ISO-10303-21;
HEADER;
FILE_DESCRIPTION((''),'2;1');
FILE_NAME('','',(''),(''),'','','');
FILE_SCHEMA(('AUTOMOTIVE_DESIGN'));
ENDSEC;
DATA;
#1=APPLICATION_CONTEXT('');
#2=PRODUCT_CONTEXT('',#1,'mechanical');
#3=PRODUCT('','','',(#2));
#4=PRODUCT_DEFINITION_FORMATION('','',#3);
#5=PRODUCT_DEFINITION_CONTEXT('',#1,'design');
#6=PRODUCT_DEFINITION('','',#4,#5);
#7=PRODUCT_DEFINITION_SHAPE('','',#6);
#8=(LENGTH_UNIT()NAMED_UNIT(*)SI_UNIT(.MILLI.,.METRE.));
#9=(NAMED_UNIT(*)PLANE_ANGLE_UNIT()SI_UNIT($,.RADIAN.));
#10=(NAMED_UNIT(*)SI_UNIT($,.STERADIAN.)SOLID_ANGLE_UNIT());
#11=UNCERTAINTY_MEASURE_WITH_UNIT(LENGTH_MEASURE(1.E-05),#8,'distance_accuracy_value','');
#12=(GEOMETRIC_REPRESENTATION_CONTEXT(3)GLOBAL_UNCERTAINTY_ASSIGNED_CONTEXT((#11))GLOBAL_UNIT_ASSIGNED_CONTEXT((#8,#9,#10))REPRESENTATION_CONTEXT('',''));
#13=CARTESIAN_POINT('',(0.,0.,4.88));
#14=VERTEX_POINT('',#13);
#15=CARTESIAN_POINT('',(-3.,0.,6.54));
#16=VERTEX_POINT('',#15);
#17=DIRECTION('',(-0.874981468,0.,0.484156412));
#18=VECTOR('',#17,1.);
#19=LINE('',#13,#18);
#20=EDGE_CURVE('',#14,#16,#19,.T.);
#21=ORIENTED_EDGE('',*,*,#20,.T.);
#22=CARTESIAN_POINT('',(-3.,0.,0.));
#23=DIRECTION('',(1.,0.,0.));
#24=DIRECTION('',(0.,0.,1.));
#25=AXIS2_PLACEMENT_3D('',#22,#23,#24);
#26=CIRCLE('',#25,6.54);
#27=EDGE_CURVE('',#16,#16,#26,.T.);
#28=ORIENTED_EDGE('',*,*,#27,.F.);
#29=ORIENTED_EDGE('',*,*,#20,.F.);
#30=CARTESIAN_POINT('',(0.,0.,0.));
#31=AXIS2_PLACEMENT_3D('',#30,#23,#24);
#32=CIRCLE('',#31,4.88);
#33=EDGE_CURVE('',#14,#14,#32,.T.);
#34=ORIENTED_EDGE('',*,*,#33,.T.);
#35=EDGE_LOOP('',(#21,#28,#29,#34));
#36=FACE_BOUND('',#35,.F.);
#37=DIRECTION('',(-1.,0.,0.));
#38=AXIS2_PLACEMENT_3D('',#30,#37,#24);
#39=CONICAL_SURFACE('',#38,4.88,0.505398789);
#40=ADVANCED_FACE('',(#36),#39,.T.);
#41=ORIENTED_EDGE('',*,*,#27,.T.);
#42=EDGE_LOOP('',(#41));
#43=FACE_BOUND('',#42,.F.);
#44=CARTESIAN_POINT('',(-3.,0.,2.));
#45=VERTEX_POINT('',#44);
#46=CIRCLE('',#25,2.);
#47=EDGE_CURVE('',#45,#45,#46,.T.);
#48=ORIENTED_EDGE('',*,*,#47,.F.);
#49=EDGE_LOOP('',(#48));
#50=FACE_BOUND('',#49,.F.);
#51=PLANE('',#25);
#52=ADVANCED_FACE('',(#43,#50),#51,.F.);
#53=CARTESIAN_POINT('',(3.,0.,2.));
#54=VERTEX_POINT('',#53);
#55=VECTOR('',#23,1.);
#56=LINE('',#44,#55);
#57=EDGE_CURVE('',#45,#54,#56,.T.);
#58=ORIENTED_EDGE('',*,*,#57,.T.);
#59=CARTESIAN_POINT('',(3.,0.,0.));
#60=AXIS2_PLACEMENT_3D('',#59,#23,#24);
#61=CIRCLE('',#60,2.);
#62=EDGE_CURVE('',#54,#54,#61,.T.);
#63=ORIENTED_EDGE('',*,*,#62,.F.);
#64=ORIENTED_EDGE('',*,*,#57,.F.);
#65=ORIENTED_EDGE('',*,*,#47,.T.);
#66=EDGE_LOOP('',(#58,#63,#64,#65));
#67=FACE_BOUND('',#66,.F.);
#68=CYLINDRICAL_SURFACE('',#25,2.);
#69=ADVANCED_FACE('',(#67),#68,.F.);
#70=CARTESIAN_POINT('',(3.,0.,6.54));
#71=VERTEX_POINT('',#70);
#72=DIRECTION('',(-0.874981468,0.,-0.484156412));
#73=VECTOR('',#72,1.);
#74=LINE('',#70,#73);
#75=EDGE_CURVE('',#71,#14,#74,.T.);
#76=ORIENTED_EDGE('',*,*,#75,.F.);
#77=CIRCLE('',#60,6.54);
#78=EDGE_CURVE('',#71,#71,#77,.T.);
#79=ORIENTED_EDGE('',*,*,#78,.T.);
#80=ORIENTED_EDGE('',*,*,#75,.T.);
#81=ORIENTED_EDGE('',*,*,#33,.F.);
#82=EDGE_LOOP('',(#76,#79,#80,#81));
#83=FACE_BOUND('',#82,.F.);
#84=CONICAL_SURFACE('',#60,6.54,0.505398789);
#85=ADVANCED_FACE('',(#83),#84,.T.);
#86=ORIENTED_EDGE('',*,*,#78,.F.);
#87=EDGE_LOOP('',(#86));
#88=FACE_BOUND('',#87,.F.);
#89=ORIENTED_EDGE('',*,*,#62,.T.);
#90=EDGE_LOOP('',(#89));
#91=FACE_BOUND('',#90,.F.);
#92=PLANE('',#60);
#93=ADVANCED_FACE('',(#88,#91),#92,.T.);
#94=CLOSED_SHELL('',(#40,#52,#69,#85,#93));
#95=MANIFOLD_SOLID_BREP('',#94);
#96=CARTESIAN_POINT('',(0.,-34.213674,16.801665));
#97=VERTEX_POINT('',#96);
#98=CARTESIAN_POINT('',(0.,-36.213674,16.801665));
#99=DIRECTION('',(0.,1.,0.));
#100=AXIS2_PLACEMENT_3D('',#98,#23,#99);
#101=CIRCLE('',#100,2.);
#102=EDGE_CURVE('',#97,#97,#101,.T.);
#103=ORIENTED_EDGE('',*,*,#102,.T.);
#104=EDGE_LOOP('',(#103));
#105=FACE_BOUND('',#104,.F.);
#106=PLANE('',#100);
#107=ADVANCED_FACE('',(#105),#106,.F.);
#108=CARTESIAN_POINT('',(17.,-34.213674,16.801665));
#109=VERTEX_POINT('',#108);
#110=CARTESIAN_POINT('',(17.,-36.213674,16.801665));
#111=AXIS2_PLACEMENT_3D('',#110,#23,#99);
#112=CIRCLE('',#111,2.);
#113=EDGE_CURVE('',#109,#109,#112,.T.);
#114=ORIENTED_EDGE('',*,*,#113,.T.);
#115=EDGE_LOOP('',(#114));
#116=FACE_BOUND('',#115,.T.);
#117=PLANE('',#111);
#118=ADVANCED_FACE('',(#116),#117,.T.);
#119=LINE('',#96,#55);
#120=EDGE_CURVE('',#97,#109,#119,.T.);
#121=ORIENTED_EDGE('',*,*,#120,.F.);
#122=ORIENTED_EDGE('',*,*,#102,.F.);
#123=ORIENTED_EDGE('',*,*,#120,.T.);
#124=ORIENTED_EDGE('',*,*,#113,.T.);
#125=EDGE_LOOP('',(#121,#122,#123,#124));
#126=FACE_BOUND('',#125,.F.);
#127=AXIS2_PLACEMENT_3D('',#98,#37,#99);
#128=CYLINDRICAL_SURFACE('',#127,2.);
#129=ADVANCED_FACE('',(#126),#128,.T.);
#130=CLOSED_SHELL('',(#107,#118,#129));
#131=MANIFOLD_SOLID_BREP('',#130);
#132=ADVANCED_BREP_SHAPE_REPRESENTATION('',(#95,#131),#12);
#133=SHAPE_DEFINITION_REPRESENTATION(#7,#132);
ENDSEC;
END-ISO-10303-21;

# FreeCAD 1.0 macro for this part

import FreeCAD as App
import Part
import Sketcher
from FreeCAD import Vector

doc = App.newDocument("Part")
body = doc.addObject("PartDesign::Body", "Body")

sketch1 = body.newObject("Sketcher::SketchObject", "Sketch")
sketch1.AttachmentSupport = (doc.getObject("XZ_Plane"), [""])
sketch1.MapMode = "FlatFace"
sketch1.addGeometry([
    Part.LineSegment(Vector(-3, 2, 0), Vector(3, 2, 0)),
    Part.LineSegment(Vector(3, 2, 0), Vector(3, 6.54, 0)),
    Part.LineSegment(Vector(3, 6.54, 0), Vector(0, 4.88, 0)),
    Part.LineSegment(Vector(0, 4.88, 0), Vector(-3, 6.54, 0)),
    Part.LineSegment(Vector(-3, 6.54, 0), Vector(-3, 2, 0)),
], False)
sketch1.addConstraint([
    Sketcher.Constraint("Coincident", 0, 2, 1, 1),
    Sketcher.Constraint("Coincident", 1, 2, 2, 1),
    Sketcher.Constraint("Coincident", 2, 2, 3, 1),
    Sketcher.Constraint("Coincident", 3, 2, 4, 1),
    Sketcher.Constraint("Coincident", 4, 2, 0, 1),
    Sketcher.Constraint("Horizontal", 0),
    Sketcher.Constraint("Vertical", 1),
    Sketcher.Constraint("Vertical", 4),
    Sketcher.Constraint("Symmetric", 1, 2, 3, 2, -2),
    Sketcher.Constraint("PointOnObject", 2, 2, -2),
    Sketcher.Constraint("DistanceX", 0, 1, 0, 2, 6.0),
    Sketcher.Constraint("DistanceY", -1, 1, 0, 2, 2.0),
    Sketcher.Constraint("DistanceY", 1, 1, 1, 2, 4.54),
    Sketcher.Constraint("DistanceY", -1, 1, 2, 2, 4.88),
])
revolution = body.newObject("PartDesign::Revolution", "Revolution")
revolution.Profile = sketch1
revolution.ReferenceAxis = (sketch1, ["H_Axis"])
revolution.Angle = 360
body2 = doc.addObject("PartDesign::Body", "Body001")

sketch2 = body2.newObject("Sketcher::SketchObject", "Sketch001")
sketch2.AttachmentSupport = (doc.getObject("YZ_Plane001"), [""])
sketch2.MapMode = "FlatFace"
sketch2.addGeometry(Part.Circle(Vector(-36.213674, 16.801665, 0), Vector(0, 0, 1), 2), False)
sketch2.addConstraint([
    Sketcher.Constraint("Diameter", 0, 4.0),
    Sketcher.Constraint("DistanceX", 0, 3, -1, 1, 36.213674),
    Sketcher.Constraint("DistanceY", -1, 1, 0, 3, 16.801665),
])
pad1 = body2.newObject("PartDesign::Pad", "Pad")
pad1.Profile = sketch2
pad1.Length = 17

doc.recompute()
